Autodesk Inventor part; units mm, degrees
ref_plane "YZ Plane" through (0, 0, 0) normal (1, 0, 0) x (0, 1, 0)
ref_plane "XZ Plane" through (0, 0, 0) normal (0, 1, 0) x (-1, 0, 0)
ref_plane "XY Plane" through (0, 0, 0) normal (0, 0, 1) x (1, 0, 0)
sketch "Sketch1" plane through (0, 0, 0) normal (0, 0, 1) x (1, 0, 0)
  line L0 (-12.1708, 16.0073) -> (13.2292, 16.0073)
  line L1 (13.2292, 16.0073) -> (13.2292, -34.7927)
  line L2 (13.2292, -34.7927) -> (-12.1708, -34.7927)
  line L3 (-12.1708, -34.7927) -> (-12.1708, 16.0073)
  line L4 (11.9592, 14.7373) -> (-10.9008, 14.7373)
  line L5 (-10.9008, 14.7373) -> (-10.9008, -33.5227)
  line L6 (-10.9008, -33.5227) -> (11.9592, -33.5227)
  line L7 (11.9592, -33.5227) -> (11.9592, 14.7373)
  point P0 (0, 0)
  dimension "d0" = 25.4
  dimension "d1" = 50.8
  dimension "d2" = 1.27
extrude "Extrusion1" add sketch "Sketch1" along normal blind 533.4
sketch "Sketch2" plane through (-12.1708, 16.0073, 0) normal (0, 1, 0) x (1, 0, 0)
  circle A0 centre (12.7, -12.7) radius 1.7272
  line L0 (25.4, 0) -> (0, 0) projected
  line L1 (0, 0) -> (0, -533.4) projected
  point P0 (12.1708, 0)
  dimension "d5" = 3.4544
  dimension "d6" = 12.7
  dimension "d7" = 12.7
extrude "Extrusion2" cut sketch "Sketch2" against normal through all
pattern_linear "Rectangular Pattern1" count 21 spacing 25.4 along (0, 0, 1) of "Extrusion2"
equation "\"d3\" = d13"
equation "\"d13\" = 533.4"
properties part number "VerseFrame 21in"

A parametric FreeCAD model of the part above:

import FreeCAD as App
import Part
import Sketcher
Q = App.Units.Quantity

doc = App.newDocument("Part")
params = doc.addObject("Spreadsheet::Sheet", "Params")
for row, (alias, value) in enumerate([
    ("sketch1_width", "1 in"),
    ("sketch1_height", "2 in"),
    ("pad1_length", "21 in"),
    ("sketch2_diameter", "0.136 in"),
    ("linearpattern_pitch", "1 in"),
], start=1):
    params.set(f"A{row}", alias)
    params.set(f"B{row}", "=" + value)
    params.setAlias(f"B{row}", alias)

body = doc.addObject("PartDesign::Body", "Body")

# Sketch on XY plane
sketch1 = body.newObject("Sketcher::SketchObject", "Sketch")
sketch1.AttachmentSupport = (doc.getObject("XY_Plane"), [""])
sketch1.MapMode = "FlatFace"
sketch1.addGeometry([
    Part.LineSegment(App.Vector(13, 16, 0), App.Vector(-12, 16, 0)),  # 0
    Part.LineSegment(App.Vector(-12, 16, 0), App.Vector(-12, -35, 0)),  # 1
    Part.LineSegment(App.Vector(-12, -35, 0), App.Vector(13, -35, 0)),  # 2
    Part.LineSegment(App.Vector(13, -35, 0), App.Vector(13, 16, 0)),  # 3
    Part.LineSegment(App.Vector(-11, 15, 0), App.Vector(12, 15, 0)),  # 4
    Part.LineSegment(App.Vector(12, 15, 0), App.Vector(12, -34, 0)),  # 5
    Part.LineSegment(App.Vector(12, -34, 0), App.Vector(-11, -34, 0)),  # 6
    Part.LineSegment(App.Vector(-11, -34, 0), App.Vector(-11, 15, 0)),  # 7
], False)
sketch1.addConstraint([
    Sketcher.Constraint("Coincident", 0, 2, 1, 1),
    Sketcher.Constraint("Coincident", 1, 2, 2, 1),
    Sketcher.Constraint("Coincident", 2, 2, 3, 1),
    Sketcher.Constraint("Coincident", 3, 2, 0, 1),
    Sketcher.Constraint("Coincident", 4, 2, 5, 1),
    Sketcher.Constraint("Coincident", 5, 2, 6, 1),
    Sketcher.Constraint("Coincident", 6, 2, 7, 1),
    Sketcher.Constraint("Coincident", 7, 2, 4, 1),
    Sketcher.Constraint("Horizontal", 0),
    Sketcher.Constraint("Vertical", 1),
    Sketcher.Constraint("Horizontal", 2),
    Sketcher.Constraint("Vertical", 3),
    Sketcher.Constraint("Horizontal", 4),
    Sketcher.Constraint("Vertical", 5),
    Sketcher.Constraint("Horizontal", 6),
    Sketcher.Constraint("Vertical", 7),
    Sketcher.Constraint("DistanceX", 0, 2, 0, 1, Q("1 in")),
    Sketcher.Constraint("DistanceY", 1, 2, 1, 1, Q("2 in")),
    Sketcher.Constraint("DistanceX", 4, 2, 3, 2, Q("0.05 in")),
    Sketcher.Constraint("DistanceY", 4, 2, 3, 2, Q("0.05 in")),
    Sketcher.Constraint("DistanceY", 2, 2, 5, 2, Q("0.05 in")),
    Sketcher.Constraint("DistanceX", 1, 2, 6, 2, Q("0.05 in")),
    Sketcher.Constraint("DistanceY", -1, 1, 0, 2, Q("0.6302 in")),
    Sketcher.Constraint("DistanceX", 0, 2, -1, 1, 12.1708),
])
sketch1.setExpression("Constraints[16]", "Params.sketch1_width")
sketch1.setExpression("Constraints[17]", "Params.sketch1_height")
pad1 = body.newObject("PartDesign::Pad", "Pad")
pad1.Profile = sketch1
pad1.setExpression("Length", "Params.pad1_length")

# Sketch on XZ plane
sketch2 = body.newObject("Sketcher::SketchObject", "Sketch001")
sketch2.AttachmentSupport = (doc.getObject("XZ_Plane"), [""])
sketch2.MapMode = "FlatFace"
sketch2.AttachmentOffset = App.Placement(App.Vector(0, 0, -0.6302087 * 25.4), App.Rotation())
sketch2.addGeometry(Part.Circle(App.Vector(0.5, 12.7, 0), App.Vector(0, 0, 1), 1.7), False)
sketch2.addConstraint([
    Sketcher.Constraint("Diameter", 0, Q("0.136 in")),
    Sketcher.Constraint("DistanceY", -1, 1, 0, 3, Q("0.5 in")),
    Sketcher.Constraint("DistanceX", -1, 1, 0, 3, 0.5292),
])
sketch2.setExpression("Constraints[0]", "Params.sketch2_diameter")
pocket1 = body.newObject("PartDesign::Pocket", "Pocket")
pocket1.Profile = sketch2
pocket1.Type = "ThroughAll"
pocket1.Reversed = True
doc.recompute()

linearpattern = body.newObject("PartDesign::LinearPattern", "LinearPattern")
linearpattern.Originals = [pocket1]
linearpattern.Direction = (doc.getObject("Z_Axis"), [""])
linearpattern.Mode = "offset"
linearpattern.setExpression("Offset", "Params.linearpattern_pitch")
linearpattern.Occurrences = 21
body.Tip = linearpattern

doc.recompute()
